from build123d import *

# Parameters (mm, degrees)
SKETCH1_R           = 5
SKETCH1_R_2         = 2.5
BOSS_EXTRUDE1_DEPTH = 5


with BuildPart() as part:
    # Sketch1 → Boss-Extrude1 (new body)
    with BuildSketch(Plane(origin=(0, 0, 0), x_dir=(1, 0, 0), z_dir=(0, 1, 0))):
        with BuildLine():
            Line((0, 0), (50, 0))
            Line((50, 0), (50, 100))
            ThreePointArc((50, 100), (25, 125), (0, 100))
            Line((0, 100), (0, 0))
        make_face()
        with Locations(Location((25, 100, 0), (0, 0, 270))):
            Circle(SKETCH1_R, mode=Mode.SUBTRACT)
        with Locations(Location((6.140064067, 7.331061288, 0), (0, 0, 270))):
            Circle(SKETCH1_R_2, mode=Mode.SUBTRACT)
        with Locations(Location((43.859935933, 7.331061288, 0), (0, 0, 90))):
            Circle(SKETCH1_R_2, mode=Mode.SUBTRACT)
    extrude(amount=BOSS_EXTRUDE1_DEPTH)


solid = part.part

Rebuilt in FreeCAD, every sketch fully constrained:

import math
import FreeCAD as App
import Part
import Sketcher
from FreeCAD import Vector
Q = App.Units.Quantity

doc = App.newDocument("Part")
body = doc.addObject("PartDesign::Body", "Body")

# Sketch on XZ plane
sketch1 = doc.addObject("Sketcher::SketchObject", "Sketch")
body.addObject(sketch1)
sketch1.AttachmentSupport = (doc.XZ_Plane, [""])
sketch1.MapMode = "FlatFace"
sketch1.addGeometry(Part.LineSegment(Vector(0, 0, 0), Vector(50, 0, 0)), False)
sketch1.addGeometry(Part.LineSegment(Vector(50, 0, 0), Vector(50, -100, 0)), False)
sketch1.addGeometry(Part.ArcOfCircle(Part.Circle(Vector(25, -100, 0), Vector(0, 0, 1), 25), math.radians(180), math.radians(360)), False)
sketch1.addGeometry(Part.LineSegment(Vector(0, -100, 0), Vector(0, 0, 0)), False)
sketch1.addGeometry(Part.Circle(Vector(6.140064, -7.331061, 0), Vector(0, 0, 1), 2.5), False)
sketch1.addGeometry(Part.Circle(Vector(43.859936, -7.331061, 0), Vector(0, 0, 1), 2.5), False)
sketch1.addGeometry(Part.Circle(Vector(25, -100, 0), Vector(0, 0, 1), 5), False)
sketch1.addConstraint(Sketcher.Constraint("Coincident", 0, 2, 1, 1))
sketch1.addConstraint(Sketcher.Constraint("Tangent", 1, 2, 2, 2))
sketch1.addConstraint(Sketcher.Constraint("Tangent", 2, 1, 3, 1))
sketch1.addConstraint(Sketcher.Constraint("Coincident", 3, 2, 0, 1))
sketch1.addConstraint(Sketcher.Constraint("Horizontal", 0))
sketch1.addConstraint(Sketcher.Constraint("Vertical", 1))
sketch1.addConstraint(Sketcher.Constraint("Vertical", 3))
sketch1.addConstraint(Sketcher.Constraint("Coincident", 3, 2, -1, 1))
sketch1.addConstraint(Sketcher.Constraint("Coincident", 6, 3, 2, 3))
sketch1.addConstraint(Sketcher.Constraint("Equal", 4, 5))
sketch1.addConstraint(Sketcher.Constraint("Horizontal", 4, 3, 5, 3))
sketch1.addConstraint(Sketcher.Constraint("Diameter", 4, Q("5 mm")))
sketch1.addConstraint(Sketcher.Constraint("Diameter", 6, Q("10 mm")))
sketch1.addConstraint(Sketcher.Constraint("Radius", 2, Q("25 mm")))
sketch1.addConstraint(Sketcher.Constraint("DistanceY", 1, 2, 1, 1, Q("100 mm")))
sketch1.addConstraint(Sketcher.Constraint("DistanceY", 4, 3, -1, 1, Q("7.331061 mm")))
sketch1.addConstraint(Sketcher.Constraint("DistanceX", 4, 3, 5, 3, Q("37.719872 mm")))
sketch1.addConstraint(Sketcher.Constraint("DistanceX", -1, 1, 4, 3, Q("6.140064 mm")))
pad1 = doc.addObject("PartDesign::Pad", "Pad")
body.addObject(pad1)
pad1.Profile = sketch1
pad1.Length = 5
pad1.Reversed = True

doc.recompute()
